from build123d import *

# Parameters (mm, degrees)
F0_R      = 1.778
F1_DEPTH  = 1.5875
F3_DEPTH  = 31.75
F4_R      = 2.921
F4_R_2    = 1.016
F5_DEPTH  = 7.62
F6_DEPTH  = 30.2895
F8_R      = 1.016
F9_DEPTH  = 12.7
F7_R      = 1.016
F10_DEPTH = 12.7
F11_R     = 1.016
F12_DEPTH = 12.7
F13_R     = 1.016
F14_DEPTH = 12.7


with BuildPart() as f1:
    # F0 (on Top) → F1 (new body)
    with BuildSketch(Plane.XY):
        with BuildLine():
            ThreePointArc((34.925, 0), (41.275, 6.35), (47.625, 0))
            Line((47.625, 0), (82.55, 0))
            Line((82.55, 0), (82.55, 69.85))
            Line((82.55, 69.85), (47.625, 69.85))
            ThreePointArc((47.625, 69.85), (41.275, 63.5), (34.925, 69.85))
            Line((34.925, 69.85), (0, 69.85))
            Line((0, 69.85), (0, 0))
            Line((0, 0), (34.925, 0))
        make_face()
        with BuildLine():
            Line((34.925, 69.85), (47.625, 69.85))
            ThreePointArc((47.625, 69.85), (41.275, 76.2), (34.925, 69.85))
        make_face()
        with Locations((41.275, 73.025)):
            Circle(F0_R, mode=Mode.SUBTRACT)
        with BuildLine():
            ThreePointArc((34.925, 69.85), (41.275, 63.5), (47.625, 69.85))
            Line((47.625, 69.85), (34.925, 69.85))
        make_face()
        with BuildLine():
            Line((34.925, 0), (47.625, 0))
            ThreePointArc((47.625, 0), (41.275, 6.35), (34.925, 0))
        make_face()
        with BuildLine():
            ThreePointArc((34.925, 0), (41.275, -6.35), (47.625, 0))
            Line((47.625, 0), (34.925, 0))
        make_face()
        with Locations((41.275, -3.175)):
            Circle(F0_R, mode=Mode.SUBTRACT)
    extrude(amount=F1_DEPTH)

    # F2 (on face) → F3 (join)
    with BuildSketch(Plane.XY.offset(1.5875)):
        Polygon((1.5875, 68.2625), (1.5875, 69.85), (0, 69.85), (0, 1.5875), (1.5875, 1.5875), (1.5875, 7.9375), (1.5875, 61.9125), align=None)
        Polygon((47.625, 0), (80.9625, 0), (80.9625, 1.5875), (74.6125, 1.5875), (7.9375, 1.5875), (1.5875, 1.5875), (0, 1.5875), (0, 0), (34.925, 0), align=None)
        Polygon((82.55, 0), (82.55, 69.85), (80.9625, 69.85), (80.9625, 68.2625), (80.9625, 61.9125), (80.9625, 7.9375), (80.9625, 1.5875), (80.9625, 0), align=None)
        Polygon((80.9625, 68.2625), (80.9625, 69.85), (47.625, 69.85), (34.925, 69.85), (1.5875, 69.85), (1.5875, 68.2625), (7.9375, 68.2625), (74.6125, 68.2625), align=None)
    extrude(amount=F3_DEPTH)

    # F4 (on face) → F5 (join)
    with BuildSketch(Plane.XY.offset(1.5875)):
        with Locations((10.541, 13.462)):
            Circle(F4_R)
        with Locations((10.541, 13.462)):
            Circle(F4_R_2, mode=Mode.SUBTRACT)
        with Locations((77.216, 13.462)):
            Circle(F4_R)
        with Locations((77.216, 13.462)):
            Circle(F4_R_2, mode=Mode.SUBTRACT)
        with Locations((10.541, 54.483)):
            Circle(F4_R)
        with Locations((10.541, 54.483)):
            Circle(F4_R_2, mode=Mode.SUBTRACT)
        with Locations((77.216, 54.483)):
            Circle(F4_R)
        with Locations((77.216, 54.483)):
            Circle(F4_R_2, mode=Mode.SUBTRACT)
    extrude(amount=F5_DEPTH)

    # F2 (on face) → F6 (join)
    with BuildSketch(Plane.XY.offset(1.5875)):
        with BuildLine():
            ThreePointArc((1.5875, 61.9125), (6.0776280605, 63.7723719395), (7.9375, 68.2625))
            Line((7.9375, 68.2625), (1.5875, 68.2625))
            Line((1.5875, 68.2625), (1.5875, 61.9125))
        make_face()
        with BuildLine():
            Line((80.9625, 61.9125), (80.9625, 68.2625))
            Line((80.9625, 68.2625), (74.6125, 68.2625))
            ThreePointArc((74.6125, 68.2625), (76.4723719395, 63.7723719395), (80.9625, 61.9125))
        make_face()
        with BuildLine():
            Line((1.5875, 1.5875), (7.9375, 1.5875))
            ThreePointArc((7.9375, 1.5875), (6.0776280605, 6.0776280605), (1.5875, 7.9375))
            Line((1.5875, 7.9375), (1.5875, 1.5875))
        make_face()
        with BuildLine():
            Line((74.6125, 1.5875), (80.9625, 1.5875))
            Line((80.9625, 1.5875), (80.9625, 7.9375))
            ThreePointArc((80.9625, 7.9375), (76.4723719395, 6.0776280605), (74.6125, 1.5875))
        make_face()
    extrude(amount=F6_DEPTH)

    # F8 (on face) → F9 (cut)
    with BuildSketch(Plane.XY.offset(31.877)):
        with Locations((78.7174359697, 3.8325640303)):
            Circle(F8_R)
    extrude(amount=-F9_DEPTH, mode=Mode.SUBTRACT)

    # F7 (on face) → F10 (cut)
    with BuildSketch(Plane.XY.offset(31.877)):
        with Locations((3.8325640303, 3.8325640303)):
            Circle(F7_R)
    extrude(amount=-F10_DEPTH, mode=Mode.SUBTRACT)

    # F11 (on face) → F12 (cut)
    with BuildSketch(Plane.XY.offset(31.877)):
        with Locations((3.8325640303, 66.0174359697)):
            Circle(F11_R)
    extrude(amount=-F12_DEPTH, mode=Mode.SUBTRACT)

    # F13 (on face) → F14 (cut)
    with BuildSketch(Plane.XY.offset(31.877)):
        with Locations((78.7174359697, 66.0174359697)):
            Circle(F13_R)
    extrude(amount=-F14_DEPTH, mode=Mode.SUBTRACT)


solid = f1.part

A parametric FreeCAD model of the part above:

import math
import FreeCAD as App
import Part
import Sketcher
Q = App.Units.Quantity

doc = App.newDocument("Part")
body = doc.addObject("PartDesign::Body", "Body")

sketch1 = doc.addObject("Sketcher::SketchObject", "Sketch")
body.addObject(sketch1)
sketch1.AttachmentSupport = (doc.XY_Plane, [""])
sketch1.MapMode = "FlatFace"
sketch1.addGeometry(Part.LineSegment(App.Vector(82.55, 0, 0), App.Vector(82.55, 69.85, 0)), False)
sketch1.addGeometry(Part.LineSegment(App.Vector(82.55, 69.85, 0), App.Vector(47.625, 69.85, 0)), False)
sketch1.addGeometry(Part.ArcOfCircle(Part.Circle(App.Vector(41.275, 69.85, 0), App.Vector(0, 0, 1), 6.35), math.radians(0), math.radians(180)), False)
sketch1.addGeometry(Part.LineSegment(App.Vector(34.925, 69.85, 0), App.Vector(0, 69.85, 0)), False)
sketch1.addGeometry(Part.LineSegment(App.Vector(0, 69.85, 0), App.Vector(0, 0, 0)), False)
sketch1.addGeometry(Part.LineSegment(App.Vector(0, 0, 0), App.Vector(34.925, 0, 0)), False)
sketch1.addGeometry(Part.ArcOfCircle(Part.Circle(App.Vector(41.275, 0, 0), App.Vector(0, 0, 1), 6.35), math.radians(180), math.radians(360)), False)
sketch1.addGeometry(Part.LineSegment(App.Vector(47.625, 0, 0), App.Vector(82.55, 0, 0)), False)
sketch1.addGeometry(Part.Circle(App.Vector(41.275, -3.175, 0), App.Vector(0, 0, 1), 1.778), False)
sketch1.addGeometry(Part.Circle(App.Vector(41.275, 73.025, 0), App.Vector(0, 0, 1), 1.778), False)
sketch1.addConstraint(Sketcher.Constraint("Coincident", 0, 2, 1, 1))
sketch1.addConstraint(Sketcher.Constraint("Coincident", 1, 2, 2, 1))
sketch1.addConstraint(Sketcher.Constraint("Coincident", 2, 2, 3, 1))
sketch1.addConstraint(Sketcher.Constraint("Coincident", 3, 2, 4, 1))
sketch1.addConstraint(Sketcher.Constraint("Coincident", 4, 2, 5, 1))
sketch1.addConstraint(Sketcher.Constraint("Coincident", 5, 2, 6, 1))
sketch1.addConstraint(Sketcher.Constraint("Coincident", 6, 2, 7, 1))
sketch1.addConstraint(Sketcher.Constraint("Coincident", 7, 2, 0, 1))
sketch1.addConstraint(Sketcher.Constraint("Vertical", 0))
sketch1.addConstraint(Sketcher.Constraint("Horizontal", 1))
sketch1.addConstraint(Sketcher.Constraint("Horizontal", 3))
sketch1.addConstraint(Sketcher.Constraint("Vertical", 4))
sketch1.addConstraint(Sketcher.Constraint("Horizontal", 5))
sketch1.addConstraint(Sketcher.Constraint("Horizontal", 7))
sketch1.addConstraint(Sketcher.Constraint("Coincident", 4, 2, -1, 1))
sketch1.addConstraint(Sketcher.Constraint("Equal", 2, 6))
sketch1.addConstraint(Sketcher.Constraint("Equal", 8, 9))
sketch1.addConstraint(Sketcher.Constraint("PointOnObject", 6, 3, -1))
sketch1.addConstraint(Sketcher.Constraint("PointOnObject", 6, 2, -1))
sketch1.addConstraint(Sketcher.Constraint("Horizontal", 2, 3, 0, 2))
sketch1.addConstraint(Sketcher.Constraint("Horizontal", 1, 2, 2, 2))
sketch1.addConstraint(Sketcher.Constraint("Vertical", 2, 3, 6, 3))
sketch1.addConstraint(Sketcher.Constraint("Vertical", 6, 3, 8, 3))
sketch1.addConstraint(Sketcher.Constraint("Vertical", 8, 3, 9, 3))
sketch1.addConstraint(Sketcher.Constraint("Equal", 1, 3))
sketch1.addConstraint(Sketcher.Constraint("Diameter", 8, Q("0.14 in")))
sketch1.addConstraint(Sketcher.Constraint("Radius", 2, Q("0.25 in")))
sketch1.addConstraint(Sketcher.Constraint("DistanceY", 8, 3, 9, 3, Q("3 in")))
sketch1.addConstraint(Sketcher.Constraint("DistanceY", 0, 1, 0, 2, Q("2.75 in")))
sketch1.addConstraint(Sketcher.Constraint("DistanceX", 1, 2, 1, 1, Q("1.375 in")))
sketch1.addConstraint(Sketcher.Constraint("DistanceY", 8, 3, -1, 1, Q("0.125 in")))
pad1 = doc.addObject("PartDesign::Pad", "Pad")
body.addObject(pad1)
pad1.Profile = sketch1
pad1.Length = Q("0.0625 in")

sketch2 = doc.addObject("Sketcher::SketchObject", "Sketch001")
body.addObject(sketch2)
sketch2.AttachmentSupport = (doc.XY_Plane, [""])
sketch2.MapMode = "FlatFace"
sketch2.AttachmentOffset = App.Placement(App.Vector(0, 0, 0.0625 * 25.4), App.Rotation())
sketch2.addGeometry(Part.LineSegment(App.Vector(0, 69.85, 0), App.Vector(0, 0, 0)), False)
sketch2.addGeometry(Part.LineSegment(App.Vector(0, 0, 0), App.Vector(82.55, 0, 0)), False)
sketch2.addGeometry(Part.LineSegment(App.Vector(82.55, 0, 0), App.Vector(82.55, 69.85, 0)), False)
sketch2.addGeometry(Part.LineSegment(App.Vector(82.55, 69.85, 0), App.Vector(0, 69.85, 0)), False)
sketch2.addGeometry(Part.LineSegment(App.Vector(80.9625, 68.2625, 0), App.Vector(80.9625, 1.5875, 0)), False)
sketch2.addGeometry(Part.LineSegment(App.Vector(80.9625, 1.5875, 0), App.Vector(1.5875, 1.5875, 0)), False)
sketch2.addGeometry(Part.LineSegment(App.Vector(1.5875, 1.5875, 0), App.Vector(1.5875, 68.2625, 0)), False)
sketch2.addGeometry(Part.LineSegment(App.Vector(1.5875, 68.2625, 0), App.Vector(80.9625, 68.2625, 0)), False)
sketch2.addConstraint(Sketcher.Constraint("Coincident", 0, 2, 1, 1))
sketch2.addConstraint(Sketcher.Constraint("Coincident", 1, 2, 2, 1))
sketch2.addConstraint(Sketcher.Constraint("Coincident", 2, 2, 3, 1))
sketch2.addConstraint(Sketcher.Constraint("Coincident", 3, 2, 0, 1))
sketch2.addConstraint(Sketcher.Constraint("Coincident", 4, 2, 5, 1))
sketch2.addConstraint(Sketcher.Constraint("Coincident", 5, 2, 6, 1))
sketch2.addConstraint(Sketcher.Constraint("Coincident", 6, 2, 7, 1))
sketch2.addConstraint(Sketcher.Constraint("Coincident", 7, 2, 4, 1))
sketch2.addConstraint(Sketcher.Constraint("Vertical", 0))
sketch2.addConstraint(Sketcher.Constraint("Horizontal", 1))
sketch2.addConstraint(Sketcher.Constraint("Vertical", 2))
sketch2.addConstraint(Sketcher.Constraint("Horizontal", 3))
sketch2.addConstraint(Sketcher.Constraint("Vertical", 4))
sketch2.addConstraint(Sketcher.Constraint("Horizontal", 5))
sketch2.addConstraint(Sketcher.Constraint("Vertical", 6))
sketch2.addConstraint(Sketcher.Constraint("Horizontal", 7))
sketch2.addConstraint(Sketcher.Constraint("Coincident", 0, 2, -1, 1))
sketch2.addConstraint(Sketcher.Constraint("DistanceX", 1, 1, 1, 2, Q("3.25 in")))
sketch2.addConstraint(Sketcher.Constraint("DistanceY", 0, 2, 0, 1, Q("2.75 in")))
sketch2.addConstraint(Sketcher.Constraint("DistanceX", 5, 2, 5, 1, Q("3.125 in")))
sketch2.addConstraint(Sketcher.Constraint("DistanceY", 4, 2, 4, 1, Q("2.625 in")))
sketch2.addConstraint(Sketcher.Constraint("DistanceX", -1, 1, 4, 2, Q("3.1875 in")))
sketch2.addConstraint(Sketcher.Constraint("DistanceY", -1, 1, 4, 2, Q("0.0625 in")))
pad2 = doc.addObject("PartDesign::Pad", "Pad001")
body.addObject(pad2)
pad2.Profile = sketch2
pad2.Length = Q("1.25 in")

sketch3 = doc.addObject("Sketcher::SketchObject", "Sketch002")
body.addObject(sketch3)
sketch3.AttachmentSupport = (doc.XY_Plane, [""])
sketch3.MapMode = "FlatFace"
sketch3.AttachmentOffset = App.Placement(App.Vector(0, 0, 0.0625 * 25.4), App.Rotation())
sketch3.addGeometry(Part.Circle(App.Vector(10.541, 13.462, 0), App.Vector(0, 0, 1), 2.921), False)
sketch3.addGeometry(Part.Circle(App.Vector(10.541, 13.462, 0), App.Vector(0, 0, 1), 1.016), False)
sketch3.addGeometry(Part.Circle(App.Vector(77.216, 13.462, 0), App.Vector(0, 0, 1), 2.921), False)
sketch3.addGeometry(Part.Circle(App.Vector(77.216, 13.462, 0), App.Vector(0, 0, 1), 1.016), False)
sketch3.addGeometry(Part.Circle(App.Vector(10.541, 54.483, 0), App.Vector(0, 0, 1), 2.921), False)
sketch3.addGeometry(Part.Circle(App.Vector(10.541, 54.483, 0), App.Vector(0, 0, 1), 1.016), False)
sketch3.addGeometry(Part.Circle(App.Vector(77.216, 54.483, 0), App.Vector(0, 0, 1), 2.921), False)
sketch3.addGeometry(Part.Circle(App.Vector(77.216, 54.483, 0), App.Vector(0, 0, 1), 1.016), False)
sketch3.addConstraint(Sketcher.Constraint("Coincident", 1, 3, 0, 3))
sketch3.addConstraint(Sketcher.Constraint("Coincident", 3, 3, 2, 3))
sketch3.addConstraint(Sketcher.Constraint("Coincident", 5, 3, 4, 3))
sketch3.addConstraint(Sketcher.Constraint("Coincident", 7, 3, 6, 3))
sketch3.addConstraint(Sketcher.Constraint("Equal", 0, 2))
sketch3.addConstraint(Sketcher.Constraint("Equal", 1, 3))
sketch3.addConstraint(Sketcher.Constraint("Equal", 2, 4))
sketch3.addConstraint(Sketcher.Constraint("Equal", 3, 5))
sketch3.addConstraint(Sketcher.Constraint("Equal", 4, 6))
sketch3.addConstraint(Sketcher.Constraint("Equal", 5, 7))
sketch3.addConstraint(Sketcher.Constraint("Horizontal", 1, 3, 2, 3))
sketch3.addConstraint(Sketcher.Constraint("Horizontal", 5, 3, 6, 3))
sketch3.addConstraint(Sketcher.Constraint("Vertical", 1, 3, 4, 3))
sketch3.addConstraint(Sketcher.Constraint("Vertical", 3, 3, 6, 3))
sketch3.addConstraint(Sketcher.Constraint("Diameter", 0, Q("0.23 in")))
sketch3.addConstraint(Sketcher.Constraint("Diameter", 1, Q("0.08 in")))
sketch3.addConstraint(Sketcher.Constraint("DistanceY", -1, 1, 0, 3, Q("0.53 in")))
sketch3.addConstraint(Sketcher.Constraint("DistanceX", -1, 1, 2, 3, Q("3.04 in")))
sketch3.addConstraint(Sketcher.Constraint("DistanceX", -1, 1, 0, 3, Q("0.415 in")))
sketch3.addConstraint(Sketcher.Constraint("DistanceY", -1, 1, 4, 3, Q("2.145 in")))
pad3 = doc.addObject("PartDesign::Pad", "Pad002")
body.addObject(pad3)
pad3.Profile = sketch3
pad3.Length = Q("0.3 in")

sketch4 = doc.addObject("Sketcher::SketchObject", "Sketch003")
body.addObject(sketch4)
sketch4.AttachmentSupport = (doc.XY_Plane, [""])
sketch4.MapMode = "FlatFace"
sketch4.AttachmentOffset = App.Placement(App.Vector(0, 0, 0.0625 * 25.4), App.Rotation())
sketch4.addGeometry(Part.ArcOfCircle(Part.Circle(App.Vector(1.5875, 68.2625, 0), App.Vector(0, 0, 1), 6.35), math.radians(-90), math.radians(0)), False)
sketch4.addGeometry(Part.LineSegment(App.Vector(7.9375, 68.2625, 0), App.Vector(1.5875, 68.2625, 0)), False)
sketch4.addGeometry(Part.LineSegment(App.Vector(1.5875, 68.2625, 0), App.Vector(1.5875, 61.9125, 0)), False)
sketch4.addGeometry(Part.LineSegment(App.Vector(80.9625, 61.9125, 0), App.Vector(80.9625, 68.2625, 0)), False)
sketch4.addGeometry(Part.LineSegment(App.Vector(80.9625, 68.2625, 0), App.Vector(74.6125, 68.2625, 0)), False)
sketch4.addGeometry(Part.ArcOfCircle(Part.Circle(App.Vector(80.9625, 68.2625, 0), App.Vector(0, 0, 1), 6.35), math.radians(180), math.radians(270)), False)
sketch4.addGeometry(Part.LineSegment(App.Vector(1.5875, 1.5875, 0), App.Vector(7.9375, 1.5875, 0)), False)
sketch4.addGeometry(Part.ArcOfCircle(Part.Circle(App.Vector(1.5875, 1.5875, 0), App.Vector(0, 0, 1), 6.35), math.radians(0), math.radians(90)), False)
sketch4.addGeometry(Part.LineSegment(App.Vector(1.5875, 7.9375, 0), App.Vector(1.5875, 1.5875, 0)), False)
sketch4.addGeometry(Part.LineSegment(App.Vector(74.6125, 1.5875, 0), App.Vector(80.9625, 1.5875, 0)), False)
sketch4.addGeometry(Part.LineSegment(App.Vector(80.9625, 1.5875, 0), App.Vector(80.9625, 7.9375, 0)), False)
sketch4.addGeometry(Part.ArcOfCircle(Part.Circle(App.Vector(80.9625, 1.5875, 0), App.Vector(0, 0, 1), 6.35), math.radians(90), math.radians(180)), False)
sketch4.addConstraint(Sketcher.Constraint("Coincident", 0, 2, 1, 1))
sketch4.addConstraint(Sketcher.Constraint("Coincident", 1, 2, 2, 1))
sketch4.addConstraint(Sketcher.Constraint("Coincident", 2, 2, 0, 1))
sketch4.addConstraint(Sketcher.Constraint("Coincident", 3, 2, 4, 1))
sketch4.addConstraint(Sketcher.Constraint("Coincident", 4, 2, 5, 1))
sketch4.addConstraint(Sketcher.Constraint("Coincident", 5, 2, 3, 1))
sketch4.addConstraint(Sketcher.Constraint("Coincident", 6, 2, 7, 1))
sketch4.addConstraint(Sketcher.Constraint("Coincident", 7, 2, 8, 1))
sketch4.addConstraint(Sketcher.Constraint("Coincident", 8, 2, 6, 1))
sketch4.addConstraint(Sketcher.Constraint("Coincident", 9, 2, 10, 1))
sketch4.addConstraint(Sketcher.Constraint("Coincident", 10, 2, 11, 1))
sketch4.addConstraint(Sketcher.Constraint("Coincident", 11, 2, 9, 1))
sketch4.addConstraint(Sketcher.Constraint("Horizontal", 1))
sketch4.addConstraint(Sketcher.Constraint("Vertical", 2))
sketch4.addConstraint(Sketcher.Constraint("Vertical", 3))
sketch4.addConstraint(Sketcher.Constraint("Horizontal", 4))
sketch4.addConstraint(Sketcher.Constraint("Horizontal", 6))
sketch4.addConstraint(Sketcher.Constraint("Vertical", 8))
sketch4.addConstraint(Sketcher.Constraint("Horizontal", 9))
sketch4.addConstraint(Sketcher.Constraint("Vertical", 10))
sketch4.addConstraint(Sketcher.Constraint("Coincident", 1, 2, 0, 3))
sketch4.addConstraint(Sketcher.Constraint("Coincident", 3, 2, 5, 3))
sketch4.addConstraint(Sketcher.Constraint("Coincident", 8, 2, 7, 3))
sketch4.addConstraint(Sketcher.Constraint("Coincident", 9, 2, 11, 3))
sketch4.addConstraint(Sketcher.Constraint("Equal", 0, 5))
sketch4.addConstraint(Sketcher.Constraint("Equal", 5, 7))
sketch4.addConstraint(Sketcher.Constraint("Equal", 7, 11))
sketch4.addConstraint(Sketcher.Constraint("Horizontal", 0, 3, 5, 3))
sketch4.addConstraint(Sketcher.Constraint("Horizontal", 7, 3, 11, 3))
sketch4.addConstraint(Sketcher.Constraint("Vertical", 0, 3, 7, 3))
sketch4.addConstraint(Sketcher.Constraint("Vertical", 5, 3, 11, 3))
sketch4.addConstraint(Sketcher.Constraint("Radius", 0, Q("0.25 in")))
sketch4.addConstraint(Sketcher.Constraint("DistanceX", -1, 1, 0, 3, Q("0.0625 in")))
sketch4.addConstraint(Sketcher.Constraint("DistanceY", -1, 1, 0, 3, Q("2.6875 in")))
sketch4.addConstraint(Sketcher.Constraint("DistanceX", -1, 1, 5, 3, Q("3.1875 in")))
sketch4.addConstraint(Sketcher.Constraint("DistanceY", -1, 1, 7, 3, Q("0.0625 in")))
pad4 = doc.addObject("PartDesign::Pad", "Pad003")
body.addObject(pad4)
pad4.Profile = sketch4
pad4.Length = Q("1.1925 in")

sketch5 = doc.addObject("Sketcher::SketchObject", "Sketch004")
body.addObject(sketch5)
sketch5.AttachmentSupport = (doc.XY_Plane, [""])
sketch5.MapMode = "FlatFace"
sketch5.AttachmentOffset = App.Placement(App.Vector(0, 0, 1.255 * 25.4), App.Rotation())
sketch5.addGeometry(Part.Circle(App.Vector(78.717436, 3.832564, 0), App.Vector(0, 0, 1), 1.016), False)
sketch5.addConstraint(Sketcher.Constraint("Diameter", 0, Q("0.08 in")))
sketch5.addConstraint(Sketcher.Constraint("DistanceX", -1, 1, 0, 3, Q("78.717436 mm")))
sketch5.addConstraint(Sketcher.Constraint("DistanceY", -1, 1, 0, 3, Q("3.832564 mm")))
pocket1 = doc.addObject("PartDesign::Pocket", "Pocket")
body.addObject(pocket1)
pocket1.Profile = sketch5
pocket1.Length = Q("0.5 in")

sketch6 = doc.addObject("Sketcher::SketchObject", "Sketch005")
body.addObject(sketch6)
sketch6.AttachmentSupport = (doc.XY_Plane, [""])
sketch6.MapMode = "FlatFace"
sketch6.AttachmentOffset = App.Placement(App.Vector(0, 0, 1.255 * 25.4), App.Rotation())
sketch6.addGeometry(Part.Circle(App.Vector(3.832564, 3.832564, 0), App.Vector(0, 0, 1), 1.016), False)
sketch6.addConstraint(Sketcher.Constraint("Diameter", 0, Q("0.08 in")))
sketch6.addConstraint(Sketcher.Constraint("DistanceX", -1, 1, 0, 3, Q("3.832564 mm")))
sketch6.addConstraint(Sketcher.Constraint("DistanceY", -1, 1, 0, 3, Q("3.832564 mm")))
pocket2 = doc.addObject("PartDesign::Pocket", "Pocket001")
body.addObject(pocket2)
pocket2.Profile = sketch6
pocket2.Length = Q("0.5 in")

sketch7 = doc.addObject("Sketcher::SketchObject", "Sketch006")
body.addObject(sketch7)
sketch7.AttachmentSupport = (doc.XY_Plane, [""])
sketch7.MapMode = "FlatFace"
sketch7.AttachmentOffset = App.Placement(App.Vector(0, 0, 1.255 * 25.4), App.Rotation())
sketch7.addGeometry(Part.Circle(App.Vector(3.832564, 66.017436, 0), App.Vector(0, 0, 1), 1.016), False)
sketch7.addConstraint(Sketcher.Constraint("Diameter", 0, Q("0.08 in")))
sketch7.addConstraint(Sketcher.Constraint("DistanceX", -1, 1, 0, 3, Q("3.832564 mm")))
sketch7.addConstraint(Sketcher.Constraint("DistanceY", -1, 1, 0, 3, Q("66.017436 mm")))
pocket3 = doc.addObject("PartDesign::Pocket", "Pocket002")
body.addObject(pocket3)
pocket3.Profile = sketch7
pocket3.Length = Q("0.5 in")

sketch8 = doc.addObject("Sketcher::SketchObject", "Sketch007")
body.addObject(sketch8)
sketch8.AttachmentSupport = (doc.XY_Plane, [""])
sketch8.MapMode = "FlatFace"
sketch8.AttachmentOffset = App.Placement(App.Vector(0, 0, 1.255 * 25.4), App.Rotation())
sketch8.addGeometry(Part.Circle(App.Vector(78.717436, 66.017436, 0), App.Vector(0, 0, 1), 1.016), False)
sketch8.addConstraint(Sketcher.Constraint("Diameter", 0, Q("0.08 in")))
sketch8.addConstraint(Sketcher.Constraint("DistanceX", -1, 1, 0, 3, Q("78.717436 mm")))
sketch8.addConstraint(Sketcher.Constraint("DistanceY", -1, 1, 0, 3, Q("66.017436 mm")))
pocket4 = doc.addObject("PartDesign::Pocket", "Pocket003")
body.addObject(pocket4)
pocket4.Profile = sketch8
pocket4.Length = Q("0.5 in")

doc.recompute()
